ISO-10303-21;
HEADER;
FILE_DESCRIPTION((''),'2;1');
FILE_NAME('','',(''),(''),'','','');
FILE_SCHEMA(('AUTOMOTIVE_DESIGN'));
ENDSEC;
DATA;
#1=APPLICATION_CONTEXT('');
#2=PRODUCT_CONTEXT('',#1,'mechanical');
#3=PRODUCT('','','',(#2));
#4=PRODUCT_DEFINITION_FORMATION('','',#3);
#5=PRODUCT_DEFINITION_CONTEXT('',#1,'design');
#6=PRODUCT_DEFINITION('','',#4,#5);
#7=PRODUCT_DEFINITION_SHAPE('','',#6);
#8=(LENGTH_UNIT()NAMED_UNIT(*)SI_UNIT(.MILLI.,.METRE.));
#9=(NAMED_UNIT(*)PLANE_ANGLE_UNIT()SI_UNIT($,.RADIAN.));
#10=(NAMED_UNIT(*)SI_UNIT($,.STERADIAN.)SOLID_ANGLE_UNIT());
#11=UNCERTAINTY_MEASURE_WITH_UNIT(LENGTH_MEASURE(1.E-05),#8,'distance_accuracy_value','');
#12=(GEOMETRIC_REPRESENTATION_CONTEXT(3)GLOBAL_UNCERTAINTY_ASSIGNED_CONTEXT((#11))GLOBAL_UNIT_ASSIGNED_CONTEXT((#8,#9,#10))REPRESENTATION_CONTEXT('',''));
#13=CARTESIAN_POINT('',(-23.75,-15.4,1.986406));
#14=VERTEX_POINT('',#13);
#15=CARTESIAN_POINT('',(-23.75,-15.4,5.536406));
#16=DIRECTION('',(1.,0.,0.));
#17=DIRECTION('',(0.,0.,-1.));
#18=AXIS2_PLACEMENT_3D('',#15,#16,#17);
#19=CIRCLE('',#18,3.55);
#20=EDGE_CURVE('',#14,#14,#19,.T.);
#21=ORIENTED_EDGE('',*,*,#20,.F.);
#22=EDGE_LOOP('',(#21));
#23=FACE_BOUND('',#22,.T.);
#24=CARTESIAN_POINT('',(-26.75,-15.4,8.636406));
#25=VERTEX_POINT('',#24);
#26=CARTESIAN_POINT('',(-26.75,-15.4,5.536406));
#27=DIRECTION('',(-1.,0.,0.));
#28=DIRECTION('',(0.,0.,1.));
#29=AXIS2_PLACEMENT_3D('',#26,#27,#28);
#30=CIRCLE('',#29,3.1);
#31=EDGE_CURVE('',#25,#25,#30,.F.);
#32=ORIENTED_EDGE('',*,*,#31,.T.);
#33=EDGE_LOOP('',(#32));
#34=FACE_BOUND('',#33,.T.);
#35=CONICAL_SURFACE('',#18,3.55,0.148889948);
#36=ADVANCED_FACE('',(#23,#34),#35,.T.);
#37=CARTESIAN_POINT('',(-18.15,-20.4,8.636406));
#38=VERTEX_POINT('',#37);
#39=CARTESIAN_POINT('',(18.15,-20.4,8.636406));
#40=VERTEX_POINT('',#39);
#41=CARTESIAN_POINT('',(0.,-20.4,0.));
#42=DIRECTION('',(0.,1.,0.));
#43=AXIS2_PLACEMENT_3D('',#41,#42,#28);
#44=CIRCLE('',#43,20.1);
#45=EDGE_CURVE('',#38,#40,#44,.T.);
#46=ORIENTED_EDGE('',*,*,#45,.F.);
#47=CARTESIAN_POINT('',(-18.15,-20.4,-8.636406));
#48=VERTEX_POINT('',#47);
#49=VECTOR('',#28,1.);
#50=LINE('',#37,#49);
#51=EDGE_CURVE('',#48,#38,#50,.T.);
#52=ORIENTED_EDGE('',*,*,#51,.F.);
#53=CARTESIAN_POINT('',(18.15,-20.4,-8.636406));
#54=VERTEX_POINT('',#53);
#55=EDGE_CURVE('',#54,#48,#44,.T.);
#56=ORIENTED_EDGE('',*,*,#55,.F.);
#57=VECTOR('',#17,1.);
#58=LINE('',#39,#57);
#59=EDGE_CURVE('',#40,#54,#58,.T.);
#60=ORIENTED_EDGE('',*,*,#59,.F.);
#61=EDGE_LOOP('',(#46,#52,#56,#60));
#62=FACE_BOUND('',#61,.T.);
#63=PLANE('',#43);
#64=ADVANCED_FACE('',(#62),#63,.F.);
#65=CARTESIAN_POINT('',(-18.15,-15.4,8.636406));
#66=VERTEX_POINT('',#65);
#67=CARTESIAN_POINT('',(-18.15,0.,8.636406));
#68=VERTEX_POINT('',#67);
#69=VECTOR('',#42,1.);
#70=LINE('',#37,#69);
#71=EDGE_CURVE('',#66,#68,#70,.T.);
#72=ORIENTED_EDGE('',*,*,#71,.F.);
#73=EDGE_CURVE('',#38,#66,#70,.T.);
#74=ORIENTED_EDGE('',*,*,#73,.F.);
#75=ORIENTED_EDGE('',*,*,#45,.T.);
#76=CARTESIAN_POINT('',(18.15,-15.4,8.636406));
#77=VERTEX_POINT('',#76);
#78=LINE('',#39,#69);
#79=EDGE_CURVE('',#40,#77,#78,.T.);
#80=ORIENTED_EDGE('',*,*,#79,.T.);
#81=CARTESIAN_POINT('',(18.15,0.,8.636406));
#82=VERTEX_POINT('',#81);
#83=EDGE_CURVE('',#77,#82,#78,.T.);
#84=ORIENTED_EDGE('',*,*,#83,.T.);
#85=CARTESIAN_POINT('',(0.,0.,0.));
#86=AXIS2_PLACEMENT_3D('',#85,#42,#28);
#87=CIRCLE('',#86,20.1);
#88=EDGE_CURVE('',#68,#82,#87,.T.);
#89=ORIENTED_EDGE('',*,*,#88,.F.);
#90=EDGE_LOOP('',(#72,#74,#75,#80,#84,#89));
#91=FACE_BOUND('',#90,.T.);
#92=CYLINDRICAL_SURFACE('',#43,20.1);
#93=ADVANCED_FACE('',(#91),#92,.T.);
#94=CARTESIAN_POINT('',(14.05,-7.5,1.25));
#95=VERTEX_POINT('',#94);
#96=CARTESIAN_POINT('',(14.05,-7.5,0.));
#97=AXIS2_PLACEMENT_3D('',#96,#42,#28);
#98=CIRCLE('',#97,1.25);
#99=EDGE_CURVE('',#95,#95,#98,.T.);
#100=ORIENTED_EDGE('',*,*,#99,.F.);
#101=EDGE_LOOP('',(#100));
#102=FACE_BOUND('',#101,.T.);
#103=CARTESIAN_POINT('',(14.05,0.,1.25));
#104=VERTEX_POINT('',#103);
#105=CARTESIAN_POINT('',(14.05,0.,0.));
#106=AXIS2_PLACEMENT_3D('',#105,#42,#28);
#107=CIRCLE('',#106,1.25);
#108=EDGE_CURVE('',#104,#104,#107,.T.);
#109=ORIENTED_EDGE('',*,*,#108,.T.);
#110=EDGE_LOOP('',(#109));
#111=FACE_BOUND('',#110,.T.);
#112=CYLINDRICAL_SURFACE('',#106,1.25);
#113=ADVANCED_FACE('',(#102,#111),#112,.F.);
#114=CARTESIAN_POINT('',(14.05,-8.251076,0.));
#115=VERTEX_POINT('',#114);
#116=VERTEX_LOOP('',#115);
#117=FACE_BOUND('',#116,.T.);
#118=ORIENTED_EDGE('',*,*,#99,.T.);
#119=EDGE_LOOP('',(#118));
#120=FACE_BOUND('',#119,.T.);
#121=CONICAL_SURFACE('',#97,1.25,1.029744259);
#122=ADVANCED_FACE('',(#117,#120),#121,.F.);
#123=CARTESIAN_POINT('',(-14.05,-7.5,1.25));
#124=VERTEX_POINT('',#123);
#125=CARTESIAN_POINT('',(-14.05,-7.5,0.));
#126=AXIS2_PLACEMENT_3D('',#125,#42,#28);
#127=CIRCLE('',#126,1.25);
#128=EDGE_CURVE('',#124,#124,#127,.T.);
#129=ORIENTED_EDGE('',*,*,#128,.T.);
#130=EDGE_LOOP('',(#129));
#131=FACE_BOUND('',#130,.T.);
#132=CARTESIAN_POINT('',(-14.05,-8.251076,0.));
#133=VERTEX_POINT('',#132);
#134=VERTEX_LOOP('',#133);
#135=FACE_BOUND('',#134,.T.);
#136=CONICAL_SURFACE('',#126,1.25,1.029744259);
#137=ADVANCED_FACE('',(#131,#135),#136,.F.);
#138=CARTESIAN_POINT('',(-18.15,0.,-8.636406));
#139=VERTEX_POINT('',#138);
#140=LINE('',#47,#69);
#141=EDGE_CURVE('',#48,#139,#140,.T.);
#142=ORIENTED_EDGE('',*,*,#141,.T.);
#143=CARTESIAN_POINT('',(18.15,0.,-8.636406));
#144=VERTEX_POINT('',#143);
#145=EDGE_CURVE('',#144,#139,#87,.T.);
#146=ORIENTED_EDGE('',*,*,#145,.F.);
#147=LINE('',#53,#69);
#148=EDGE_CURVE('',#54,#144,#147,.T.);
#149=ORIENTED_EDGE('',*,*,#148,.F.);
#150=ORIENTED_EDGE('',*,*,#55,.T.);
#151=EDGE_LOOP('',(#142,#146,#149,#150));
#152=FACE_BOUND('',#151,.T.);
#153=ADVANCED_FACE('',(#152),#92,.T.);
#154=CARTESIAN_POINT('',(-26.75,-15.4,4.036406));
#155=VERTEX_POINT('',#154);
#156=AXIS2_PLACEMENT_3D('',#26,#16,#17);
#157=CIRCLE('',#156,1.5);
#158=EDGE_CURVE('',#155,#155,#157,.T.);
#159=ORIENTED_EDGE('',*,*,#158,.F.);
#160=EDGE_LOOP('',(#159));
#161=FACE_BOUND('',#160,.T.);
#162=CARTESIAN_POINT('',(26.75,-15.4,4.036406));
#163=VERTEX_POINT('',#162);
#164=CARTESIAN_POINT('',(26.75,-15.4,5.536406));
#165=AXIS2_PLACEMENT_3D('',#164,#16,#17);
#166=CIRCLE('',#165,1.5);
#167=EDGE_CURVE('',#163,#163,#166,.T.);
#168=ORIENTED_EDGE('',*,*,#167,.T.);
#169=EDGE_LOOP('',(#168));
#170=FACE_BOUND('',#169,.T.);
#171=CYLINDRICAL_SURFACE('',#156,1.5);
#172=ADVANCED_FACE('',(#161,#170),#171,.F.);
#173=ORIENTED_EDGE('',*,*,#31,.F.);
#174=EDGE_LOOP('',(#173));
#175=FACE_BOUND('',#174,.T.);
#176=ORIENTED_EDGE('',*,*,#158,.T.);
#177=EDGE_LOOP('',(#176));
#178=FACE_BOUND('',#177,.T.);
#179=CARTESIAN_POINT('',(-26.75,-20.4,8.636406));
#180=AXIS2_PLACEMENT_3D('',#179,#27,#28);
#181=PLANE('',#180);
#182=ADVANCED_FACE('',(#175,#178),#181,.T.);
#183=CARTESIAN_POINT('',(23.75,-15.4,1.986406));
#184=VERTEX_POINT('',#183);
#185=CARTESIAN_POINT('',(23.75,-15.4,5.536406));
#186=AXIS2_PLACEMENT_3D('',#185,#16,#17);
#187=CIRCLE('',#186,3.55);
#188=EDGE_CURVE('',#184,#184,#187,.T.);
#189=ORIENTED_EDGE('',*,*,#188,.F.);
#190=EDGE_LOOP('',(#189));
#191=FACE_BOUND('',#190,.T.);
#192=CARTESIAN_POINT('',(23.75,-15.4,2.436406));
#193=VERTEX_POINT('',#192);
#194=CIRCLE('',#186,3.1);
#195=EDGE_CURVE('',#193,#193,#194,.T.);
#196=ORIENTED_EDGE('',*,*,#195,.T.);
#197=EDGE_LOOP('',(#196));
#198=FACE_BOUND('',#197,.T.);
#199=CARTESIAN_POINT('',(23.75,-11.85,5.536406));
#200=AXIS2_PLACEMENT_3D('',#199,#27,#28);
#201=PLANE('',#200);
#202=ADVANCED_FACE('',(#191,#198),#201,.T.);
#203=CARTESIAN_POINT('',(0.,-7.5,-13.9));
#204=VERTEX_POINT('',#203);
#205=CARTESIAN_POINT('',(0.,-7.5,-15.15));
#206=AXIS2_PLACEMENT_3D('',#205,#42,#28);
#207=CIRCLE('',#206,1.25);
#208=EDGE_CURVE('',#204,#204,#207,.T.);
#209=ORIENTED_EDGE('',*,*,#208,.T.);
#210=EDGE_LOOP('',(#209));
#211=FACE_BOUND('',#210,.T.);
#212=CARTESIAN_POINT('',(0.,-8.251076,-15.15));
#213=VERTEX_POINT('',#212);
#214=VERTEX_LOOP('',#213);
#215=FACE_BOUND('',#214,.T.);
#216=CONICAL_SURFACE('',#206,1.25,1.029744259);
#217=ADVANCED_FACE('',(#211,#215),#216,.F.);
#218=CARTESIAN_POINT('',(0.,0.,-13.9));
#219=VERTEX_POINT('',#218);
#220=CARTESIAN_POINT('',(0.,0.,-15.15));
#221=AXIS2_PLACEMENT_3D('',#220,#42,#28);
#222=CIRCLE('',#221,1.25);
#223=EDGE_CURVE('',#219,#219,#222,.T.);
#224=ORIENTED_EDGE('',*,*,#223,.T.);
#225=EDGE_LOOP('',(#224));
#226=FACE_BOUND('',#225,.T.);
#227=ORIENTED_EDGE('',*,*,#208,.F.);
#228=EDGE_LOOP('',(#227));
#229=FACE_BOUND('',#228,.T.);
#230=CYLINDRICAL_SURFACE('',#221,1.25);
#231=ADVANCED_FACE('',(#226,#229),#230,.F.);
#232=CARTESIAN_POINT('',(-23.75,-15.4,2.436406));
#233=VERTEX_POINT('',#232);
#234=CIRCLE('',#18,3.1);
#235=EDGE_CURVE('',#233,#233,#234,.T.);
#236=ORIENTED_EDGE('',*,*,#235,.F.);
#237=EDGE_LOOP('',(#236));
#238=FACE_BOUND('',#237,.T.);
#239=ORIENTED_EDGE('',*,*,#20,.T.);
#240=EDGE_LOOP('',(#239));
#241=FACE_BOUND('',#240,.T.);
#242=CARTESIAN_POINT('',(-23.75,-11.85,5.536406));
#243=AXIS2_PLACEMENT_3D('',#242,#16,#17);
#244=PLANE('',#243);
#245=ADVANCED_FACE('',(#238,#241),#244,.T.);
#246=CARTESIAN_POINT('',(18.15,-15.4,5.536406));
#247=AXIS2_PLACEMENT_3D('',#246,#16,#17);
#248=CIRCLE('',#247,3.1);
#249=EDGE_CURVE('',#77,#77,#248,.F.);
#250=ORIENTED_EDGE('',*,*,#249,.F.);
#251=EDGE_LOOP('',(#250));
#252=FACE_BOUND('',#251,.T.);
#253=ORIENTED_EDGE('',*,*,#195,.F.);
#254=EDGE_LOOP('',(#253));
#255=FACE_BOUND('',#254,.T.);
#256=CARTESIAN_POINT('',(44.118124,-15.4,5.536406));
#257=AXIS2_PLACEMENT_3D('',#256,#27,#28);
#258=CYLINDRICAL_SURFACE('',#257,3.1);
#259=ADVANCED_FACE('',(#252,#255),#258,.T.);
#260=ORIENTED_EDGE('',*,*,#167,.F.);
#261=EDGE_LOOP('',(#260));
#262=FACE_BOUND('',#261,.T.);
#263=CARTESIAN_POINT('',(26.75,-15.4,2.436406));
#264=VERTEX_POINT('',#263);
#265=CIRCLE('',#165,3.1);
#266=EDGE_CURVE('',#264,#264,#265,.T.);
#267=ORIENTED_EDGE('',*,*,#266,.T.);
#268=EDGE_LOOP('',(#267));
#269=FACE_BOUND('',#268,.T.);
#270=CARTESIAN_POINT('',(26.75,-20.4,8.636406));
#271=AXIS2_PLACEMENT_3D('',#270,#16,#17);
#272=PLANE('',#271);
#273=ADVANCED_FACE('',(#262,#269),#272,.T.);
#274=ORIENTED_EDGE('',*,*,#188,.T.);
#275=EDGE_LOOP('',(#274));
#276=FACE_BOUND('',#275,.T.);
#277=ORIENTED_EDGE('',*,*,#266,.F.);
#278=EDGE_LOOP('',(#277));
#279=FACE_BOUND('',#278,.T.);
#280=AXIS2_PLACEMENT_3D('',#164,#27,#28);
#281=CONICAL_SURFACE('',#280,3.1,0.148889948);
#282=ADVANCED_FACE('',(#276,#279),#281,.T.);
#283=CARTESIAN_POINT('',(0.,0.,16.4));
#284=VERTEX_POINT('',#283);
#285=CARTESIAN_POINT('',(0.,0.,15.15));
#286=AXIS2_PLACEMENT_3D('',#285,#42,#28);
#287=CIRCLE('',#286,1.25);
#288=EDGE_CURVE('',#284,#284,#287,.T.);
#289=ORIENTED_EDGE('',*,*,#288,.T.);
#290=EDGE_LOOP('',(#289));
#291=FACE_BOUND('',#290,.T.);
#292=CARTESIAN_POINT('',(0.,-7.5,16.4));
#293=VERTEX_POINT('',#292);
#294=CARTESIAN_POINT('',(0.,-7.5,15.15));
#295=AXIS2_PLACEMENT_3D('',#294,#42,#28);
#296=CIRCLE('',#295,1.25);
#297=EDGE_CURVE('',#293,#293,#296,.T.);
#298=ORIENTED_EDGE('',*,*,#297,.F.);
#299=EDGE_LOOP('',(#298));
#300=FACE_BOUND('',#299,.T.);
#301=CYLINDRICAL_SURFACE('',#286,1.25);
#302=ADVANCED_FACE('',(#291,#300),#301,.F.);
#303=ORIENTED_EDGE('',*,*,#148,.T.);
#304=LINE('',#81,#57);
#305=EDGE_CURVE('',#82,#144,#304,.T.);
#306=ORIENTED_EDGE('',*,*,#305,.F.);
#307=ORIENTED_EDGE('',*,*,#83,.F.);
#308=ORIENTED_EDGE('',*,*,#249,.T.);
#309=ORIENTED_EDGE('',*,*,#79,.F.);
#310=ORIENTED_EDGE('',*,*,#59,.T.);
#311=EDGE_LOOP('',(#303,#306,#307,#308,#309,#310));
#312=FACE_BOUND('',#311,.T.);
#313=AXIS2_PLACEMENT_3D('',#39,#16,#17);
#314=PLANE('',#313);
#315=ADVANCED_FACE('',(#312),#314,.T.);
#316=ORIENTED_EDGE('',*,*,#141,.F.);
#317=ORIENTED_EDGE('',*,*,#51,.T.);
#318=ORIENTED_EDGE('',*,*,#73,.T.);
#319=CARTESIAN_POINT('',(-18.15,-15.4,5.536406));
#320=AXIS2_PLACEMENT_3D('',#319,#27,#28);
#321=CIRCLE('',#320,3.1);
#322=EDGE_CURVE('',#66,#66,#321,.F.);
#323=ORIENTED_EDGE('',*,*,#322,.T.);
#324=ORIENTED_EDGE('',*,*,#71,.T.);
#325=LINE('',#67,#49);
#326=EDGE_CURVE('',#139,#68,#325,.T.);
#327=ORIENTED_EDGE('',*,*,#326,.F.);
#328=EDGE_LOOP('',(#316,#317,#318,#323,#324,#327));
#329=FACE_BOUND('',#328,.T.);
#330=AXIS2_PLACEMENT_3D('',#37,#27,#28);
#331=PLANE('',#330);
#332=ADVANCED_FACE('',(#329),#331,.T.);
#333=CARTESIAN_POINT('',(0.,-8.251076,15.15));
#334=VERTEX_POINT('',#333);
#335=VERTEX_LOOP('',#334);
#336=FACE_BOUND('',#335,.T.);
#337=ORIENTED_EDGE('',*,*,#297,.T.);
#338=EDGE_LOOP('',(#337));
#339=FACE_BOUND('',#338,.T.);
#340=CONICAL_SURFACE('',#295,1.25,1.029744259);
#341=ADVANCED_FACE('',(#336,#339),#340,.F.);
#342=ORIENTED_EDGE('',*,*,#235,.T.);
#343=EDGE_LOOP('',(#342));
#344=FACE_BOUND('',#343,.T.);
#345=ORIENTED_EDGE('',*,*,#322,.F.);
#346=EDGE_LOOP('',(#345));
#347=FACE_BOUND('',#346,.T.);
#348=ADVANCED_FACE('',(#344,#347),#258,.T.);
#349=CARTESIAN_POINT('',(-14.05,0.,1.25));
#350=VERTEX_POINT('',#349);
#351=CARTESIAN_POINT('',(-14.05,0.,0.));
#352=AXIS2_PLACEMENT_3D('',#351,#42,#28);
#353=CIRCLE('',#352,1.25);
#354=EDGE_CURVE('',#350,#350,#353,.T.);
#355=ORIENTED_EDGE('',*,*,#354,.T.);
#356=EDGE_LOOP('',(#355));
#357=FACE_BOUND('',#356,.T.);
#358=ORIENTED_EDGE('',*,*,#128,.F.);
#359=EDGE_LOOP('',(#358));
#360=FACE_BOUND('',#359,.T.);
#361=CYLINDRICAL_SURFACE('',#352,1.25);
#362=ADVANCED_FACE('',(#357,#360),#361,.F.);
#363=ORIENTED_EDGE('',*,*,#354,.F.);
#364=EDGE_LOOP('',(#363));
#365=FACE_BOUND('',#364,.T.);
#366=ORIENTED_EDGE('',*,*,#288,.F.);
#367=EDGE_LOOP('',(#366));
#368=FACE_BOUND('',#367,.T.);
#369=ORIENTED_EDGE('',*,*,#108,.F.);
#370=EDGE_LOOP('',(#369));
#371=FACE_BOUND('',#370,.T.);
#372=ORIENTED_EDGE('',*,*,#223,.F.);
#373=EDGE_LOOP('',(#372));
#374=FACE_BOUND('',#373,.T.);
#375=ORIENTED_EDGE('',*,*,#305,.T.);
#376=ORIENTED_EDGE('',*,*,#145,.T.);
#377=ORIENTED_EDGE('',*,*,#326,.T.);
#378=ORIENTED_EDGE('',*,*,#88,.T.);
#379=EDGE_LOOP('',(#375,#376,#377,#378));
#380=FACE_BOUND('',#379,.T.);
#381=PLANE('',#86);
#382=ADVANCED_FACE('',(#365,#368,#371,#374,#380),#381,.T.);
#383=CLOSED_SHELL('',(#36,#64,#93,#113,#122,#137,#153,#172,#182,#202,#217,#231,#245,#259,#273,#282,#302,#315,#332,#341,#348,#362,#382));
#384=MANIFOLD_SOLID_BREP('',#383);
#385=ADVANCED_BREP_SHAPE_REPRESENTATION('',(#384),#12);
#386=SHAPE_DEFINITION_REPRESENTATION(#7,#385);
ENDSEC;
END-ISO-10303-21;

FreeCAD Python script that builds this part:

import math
import FreeCAD as App
import Part
import Sketcher
from FreeCAD import Vector
Q = App.Units.Quantity


def add_polygon(sketch, points):
    """Adds a closed chain of lines whose ends are joined by coincident constraints."""
    first, n = sketch.GeometryCount, len(points)
    for a, b in zip(points, points[1:] + points[:1]):
        sketch.addGeometry(Part.LineSegment(App.Vector(*a, 0), App.Vector(*b, 0)), False)
    for i in range(n):
        sketch.addConstraint(Sketcher.Constraint("Coincident", first + i, 2, first + (i + 1) % n, 1))

doc = App.newDocument("Part")
body = doc.addObject("PartDesign::Body", "Body")

sketch1 = body.newObject("Sketcher::SketchObject", "Sketch")
sketch1.AttachmentSupport = (doc.getObject("XZ_Plane"), [""])
sketch1.MapMode = "FlatFace"
sketch1.addGeometry([
    Part.LineSegment(Vector(-18, -9, 0), Vector(-18, 9, 0)),
    Part.ArcOfCircle(Part.Circle(Vector(0, 0, 0), Vector(0, 0, 1), 20), math.radians(25), math.radians(155)),
    Part.LineSegment(Vector(18, 9, 0), Vector(18, -9, 0)),
    Part.ArcOfCircle(Part.Circle(Vector(0, 0, 0), Vector(0, 0, 1), 20), math.radians(-155), math.radians(-25)),
], False)
sketch1.addConstraint([
    Sketcher.Constraint("Coincident", 0, 2, 1, 2),
    Sketcher.Constraint("Coincident", 1, 1, 2, 1),
    Sketcher.Constraint("Coincident", 2, 2, 3, 2),
    Sketcher.Constraint("Coincident", 3, 1, 0, 1),
    Sketcher.Constraint("Vertical", 0),
    Sketcher.Constraint("Vertical", 2),
    Sketcher.Constraint("Coincident", 1, 3, -1, 1),
    Sketcher.Constraint("Coincident", 3, 3, -1, 1),
    Sketcher.Constraint("Equal", 1, 3),
    Sketcher.Constraint("Horizontal", 0, 2, 1, 1),
    Sketcher.Constraint("Radius", 1, Q("20.1 mm")),
    Sketcher.Constraint("DistanceX", 0, 2, 1, 1, Q("36.3 mm")),
])
pad1 = body.newObject("PartDesign::Pad", "Pad")
pad1.Profile = sketch1
pad1.Length = 20.4

sketch2 = body.newObject("Sketcher::SketchObject", "Sketch001")
sketch2.AttachmentSupport = (doc.getObject("XZ_Plane"), [""])
sketch2.MapMode = "FlatFace"
sketch2.addGeometry([
    Part.Circle(Vector(0, -15.2, 0), Vector(0, 0, 1), 1.2),
    Part.Circle(Vector(0, 15.2, 0), Vector(0, 0, 1), 1.2),
    Part.Circle(Vector(14.1, 0, 0), Vector(0, 0, 1), 1.2),
    Part.Circle(Vector(-14.1, 0, 0), Vector(0, 0, 1), 1.2),
], False)
sketch2.addConstraint([
    Sketcher.Constraint("Equal", 0, 1),
    Sketcher.Constraint("Equal", 1, 2),
    Sketcher.Constraint("Equal", 2, 3),
    Sketcher.Constraint("Symmetric", 0, 3, 1, 3, -1, 1),
    Sketcher.Constraint("Symmetric", 2, 3, 3, 3, -1, 1),
    Sketcher.Constraint("PointOnObject", 0, 3, -2),
    Sketcher.Constraint("PointOnObject", 2, 3, -1),
    Sketcher.Constraint("Diameter", 0, Q("2.5 mm")),
    Sketcher.Constraint("DistanceY", 0, 3, 1, 3, Q("30.3 mm")),
    Sketcher.Constraint("DistanceX", 3, 3, 2, 3, Q("28.1 mm")),
])
doc.recompute()
hole = body.newObject("PartDesign::Hole", "Hole")
hole.Profile = sketch2
hole.ThreadType = "None"
hole.Diameter = 2.5
hole.DepthType = "Dimension"
hole.Depth = 7.5
hole.DrillPoint = "Angled"
hole.DrillPointAngle = 118
hole.Reversed = True

sketch3 = body.newObject("Sketcher::SketchObject", "Sketch002")
sketch3.AttachmentSupport = (doc.getObject("YZ_Plane"), [""])
sketch3.MapMode = "FlatFace"
sketch3.AttachmentOffset = App.Placement(Vector(0, 0, 18.15), App.Rotation())
sketch3.addGeometry(Part.Circle(Vector(-15.4, 5.5, 0), Vector(0, 0, 1), 3.1), False)
sketch3.addConstraint([
    Sketcher.Constraint("Diameter", 0, Q("6.2 mm")),
    Sketcher.Constraint("DistanceX", 0, 3, -1, 1, Q("15.4 mm")),
    Sketcher.Constraint("DistanceY", -1, 1, 0, 3, Q("5.536406 mm")),
])
pad2 = body.newObject("PartDesign::Pad", "Pad001")
pad2.Profile = sketch3
pad2.Type = "TwoLengths"
pad2.Length = 8.6
pad2.Length2 = 44.9

sketch4 = body.newObject("Sketcher::SketchObject", "Sketch003")
sketch4.AttachmentSupport = (doc.getObject("XY_Plane"), [""])
sketch4.MapMode = "FlatFace"
sketch4.AttachmentOffset = App.Placement(Vector(0, 0, 5.536406), App.Rotation())
add_polygon(sketch4, [(26.75, -12.3), (23.75, -11.85), (23.75, -12.3)])
add_polygon(sketch4, [(-23.75, -11.85), (-26.75, -12.3), (-23.75, -12.3)])
sketch4.addGeometry(Part.LineSegment(Vector(26.75, -15.4, 0), Vector(-26.75, -15.4, 0)), True)
sketch4.addConstraint([
    Sketcher.Constraint("Vertical", 1),
    Sketcher.Constraint("Horizontal", 2),
    Sketcher.Constraint("Horizontal", 4),
    Sketcher.Constraint("Vertical", 5),
    Sketcher.Constraint("Horizontal", 6),
    Sketcher.Constraint("Symmetric", 2, 2, 3, 2, -2),
    Sketcher.Constraint("Symmetric", 0, 2, 5, 2, -2),
    Sketcher.Constraint("Vertical", 2, 2, 6, 1),
    Sketcher.Constraint("Vertical", 3, 2, 6, 2),
    Sketcher.Constraint("DistanceX", 2, 1, 2, 2, Q("3 mm")),
    Sketcher.Constraint("DistanceX", 6, 2, 6, 1, Q("53.5 mm")),
    Sketcher.Constraint("DistanceY", 1, 2, 1, 1, Q("0.45 mm")),
    Sketcher.Constraint("DistanceY", 1, 2, -1, 1, Q("12.3 mm")),
    Sketcher.Constraint("DistanceY", 6, 1, -1, 1, Q("15.4 mm")),
])
revolution = body.newObject("PartDesign::Revolution", "Revolution")
revolution.Profile = sketch4
revolution.ReferenceAxis = (sketch4, ["Axis0"])
revolution.Angle = 360

sketch5 = body.newObject("Sketcher::SketchObject", "Sketch004")
sketch5.AttachmentSupport = (doc.getObject("YZ_Plane"), [""])
sketch5.MapMode = "FlatFace"
sketch5.AttachmentOffset = App.Placement(Vector(0, 0, 26.75), App.Rotation())
sketch5.addGeometry(Part.Circle(Vector(-15.4, 5.5, 0), Vector(0, 0, 1), 1.5), False)
sketch5.addConstraint([
    Sketcher.Constraint("Diameter", 0, Q("3 mm")),
    Sketcher.Constraint("DistanceX", 0, 3, -1, 1, Q("15.4 mm")),
    Sketcher.Constraint("DistanceY", -1, 1, 0, 3, Q("5.536406 mm")),
])
pocket1 = body.newObject("PartDesign::Pocket", "Pocket")
pocket1.Profile = sketch5
pocket1.Type = "ThroughAll"

doc.recompute()
